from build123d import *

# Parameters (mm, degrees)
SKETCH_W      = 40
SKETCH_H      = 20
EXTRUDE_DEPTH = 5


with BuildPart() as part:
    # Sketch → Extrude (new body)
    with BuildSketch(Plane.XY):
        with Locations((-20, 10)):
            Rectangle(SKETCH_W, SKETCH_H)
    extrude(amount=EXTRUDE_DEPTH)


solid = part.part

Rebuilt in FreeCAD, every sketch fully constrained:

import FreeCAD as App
import Part
import Sketcher
from FreeCAD import Vector
Q = App.Units.Quantity

doc = App.newDocument("Part")
params = doc.addObject("Spreadsheet::Sheet", "Params")
for row, (alias, value) in enumerate([
    ("sketch1_width", "40 mm"),
    ("sketch1_height", "20 mm"),
    ("pad1_length", "5 mm"),
], start=1):
    params.set(f"A{row}", alias)
    params.set(f"B{row}", "=" + value)
    params.setAlias(f"B{row}", alias)

body = doc.addObject("PartDesign::Body", "Body")

# Sketch on XY plane
sketch1 = body.newObject("Sketcher::SketchObject", "Sketch")
sketch1.AttachmentSupport = (doc.getObject("XY_Plane"), [""])
sketch1.MapMode = "FlatFace"
sketch1.addGeometry([
    Part.LineSegment(Vector(-40, 20, 0), Vector(-40, 0, 0)),
    Part.LineSegment(Vector(-40, 0, 0), Vector(0, 0, 0)),
    Part.LineSegment(Vector(0, 0, 0), Vector(0, 20, 0)),
    Part.LineSegment(Vector(0, 20, 0), Vector(-40, 20, 0)),
], False)
sketch1.addConstraint([
    Sketcher.Constraint("Coincident", 0, 2, 1, 1),
    Sketcher.Constraint("Coincident", 1, 2, 2, 1),
    Sketcher.Constraint("Coincident", 2, 2, 3, 1),
    Sketcher.Constraint("Coincident", 3, 2, 0, 1),
    Sketcher.Constraint("Vertical", 0),
    Sketcher.Constraint("Horizontal", 1),
    Sketcher.Constraint("Vertical", 2),
    Sketcher.Constraint("Horizontal", 3),
    Sketcher.Constraint("Coincident", 1, 2, -1, 1),
    Sketcher.Constraint("DistanceX", 1, 1, 1, 2, Q("40 mm")),
    Sketcher.Constraint("DistanceY", 0, 2, 0, 1, Q("20 mm")),
])
sketch1.setExpression("Constraints[9]", "Params.sketch1_width")
sketch1.setExpression("Constraints[10]", "Params.sketch1_height")
pad1 = body.newObject("PartDesign::Pad", "Pad")
pad1.Profile = sketch1
pad1.setExpression("Length", "Params.pad1_length")

doc.recompute()
